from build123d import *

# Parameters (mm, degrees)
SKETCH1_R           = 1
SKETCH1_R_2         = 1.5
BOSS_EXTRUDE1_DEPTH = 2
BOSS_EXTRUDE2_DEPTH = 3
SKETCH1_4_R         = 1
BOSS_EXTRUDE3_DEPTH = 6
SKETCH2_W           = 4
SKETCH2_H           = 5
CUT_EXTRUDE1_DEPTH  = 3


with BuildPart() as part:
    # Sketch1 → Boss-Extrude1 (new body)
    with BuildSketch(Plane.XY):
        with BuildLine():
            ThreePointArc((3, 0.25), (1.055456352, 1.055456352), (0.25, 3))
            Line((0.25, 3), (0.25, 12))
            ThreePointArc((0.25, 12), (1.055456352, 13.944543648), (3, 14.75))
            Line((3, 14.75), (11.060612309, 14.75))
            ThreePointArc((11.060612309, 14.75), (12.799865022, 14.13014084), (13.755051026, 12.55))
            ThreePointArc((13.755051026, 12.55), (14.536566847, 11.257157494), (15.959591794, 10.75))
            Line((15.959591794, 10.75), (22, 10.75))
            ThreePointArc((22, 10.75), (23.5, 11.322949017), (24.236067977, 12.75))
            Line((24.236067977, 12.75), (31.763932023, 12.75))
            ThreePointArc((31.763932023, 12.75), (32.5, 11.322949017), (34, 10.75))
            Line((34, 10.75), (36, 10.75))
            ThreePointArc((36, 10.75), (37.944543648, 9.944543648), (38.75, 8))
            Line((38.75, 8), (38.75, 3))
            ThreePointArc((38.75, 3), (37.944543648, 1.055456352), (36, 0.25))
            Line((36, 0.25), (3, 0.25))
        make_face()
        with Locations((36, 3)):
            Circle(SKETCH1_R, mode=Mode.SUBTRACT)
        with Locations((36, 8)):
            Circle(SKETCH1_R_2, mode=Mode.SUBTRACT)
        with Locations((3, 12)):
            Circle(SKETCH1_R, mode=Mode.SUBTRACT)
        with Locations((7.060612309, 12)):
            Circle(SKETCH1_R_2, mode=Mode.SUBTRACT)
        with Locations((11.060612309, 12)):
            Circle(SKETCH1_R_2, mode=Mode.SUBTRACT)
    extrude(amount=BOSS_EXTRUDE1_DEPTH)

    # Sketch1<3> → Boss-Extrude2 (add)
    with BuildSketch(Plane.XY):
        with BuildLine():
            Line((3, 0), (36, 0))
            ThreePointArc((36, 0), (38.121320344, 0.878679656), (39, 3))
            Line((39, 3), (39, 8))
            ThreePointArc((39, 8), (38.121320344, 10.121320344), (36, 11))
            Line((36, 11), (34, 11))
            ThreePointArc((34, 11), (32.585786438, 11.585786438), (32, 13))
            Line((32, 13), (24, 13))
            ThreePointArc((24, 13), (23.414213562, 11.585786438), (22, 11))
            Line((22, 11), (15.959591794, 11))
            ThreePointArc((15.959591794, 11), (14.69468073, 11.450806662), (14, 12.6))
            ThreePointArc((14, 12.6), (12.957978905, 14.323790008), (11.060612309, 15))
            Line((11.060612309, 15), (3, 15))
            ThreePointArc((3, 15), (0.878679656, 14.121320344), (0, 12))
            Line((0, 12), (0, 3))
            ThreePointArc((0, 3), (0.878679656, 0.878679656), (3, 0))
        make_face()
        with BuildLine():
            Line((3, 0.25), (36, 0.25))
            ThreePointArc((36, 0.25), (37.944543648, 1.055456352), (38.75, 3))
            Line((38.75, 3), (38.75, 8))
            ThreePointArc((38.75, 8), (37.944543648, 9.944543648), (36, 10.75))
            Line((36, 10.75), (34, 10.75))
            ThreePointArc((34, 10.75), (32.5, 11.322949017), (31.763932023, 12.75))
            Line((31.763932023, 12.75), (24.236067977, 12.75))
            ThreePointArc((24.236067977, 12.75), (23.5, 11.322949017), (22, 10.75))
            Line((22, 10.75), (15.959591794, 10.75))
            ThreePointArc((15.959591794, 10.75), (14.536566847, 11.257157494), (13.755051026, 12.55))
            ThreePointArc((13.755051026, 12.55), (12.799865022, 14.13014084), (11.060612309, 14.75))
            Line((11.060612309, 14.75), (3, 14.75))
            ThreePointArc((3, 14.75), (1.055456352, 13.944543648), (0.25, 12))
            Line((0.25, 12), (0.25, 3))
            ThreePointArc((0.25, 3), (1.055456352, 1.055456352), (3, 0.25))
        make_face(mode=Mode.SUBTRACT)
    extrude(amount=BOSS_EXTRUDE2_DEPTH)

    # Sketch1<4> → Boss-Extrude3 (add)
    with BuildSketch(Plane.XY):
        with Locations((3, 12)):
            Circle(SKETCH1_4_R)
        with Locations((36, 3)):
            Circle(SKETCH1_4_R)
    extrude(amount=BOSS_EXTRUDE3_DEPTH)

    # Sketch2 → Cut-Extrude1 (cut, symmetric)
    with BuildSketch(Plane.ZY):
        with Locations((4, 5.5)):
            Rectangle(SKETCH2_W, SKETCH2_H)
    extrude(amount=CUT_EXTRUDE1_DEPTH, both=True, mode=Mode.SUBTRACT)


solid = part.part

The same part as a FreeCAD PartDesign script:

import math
import FreeCAD as App
import Part
import Sketcher

V = App.Vector
Q = App.Units.Quantity


def add_polygon(sketch, points):
    """Adds a closed chain of lines whose ends are joined by coincident constraints."""
    first, n = sketch.GeometryCount, len(points)
    for a, b in zip(points, points[1:] + points[:1]):
        sketch.addGeometry(Part.LineSegment(App.Vector(*a, 0), App.Vector(*b, 0)), False)
    for i in range(n):
        sketch.addConstraint(Sketcher.Constraint("Coincident", first + i, 2, first + (i + 1) % n, 1))

doc = App.newDocument("Part")
params = doc.addObject("Spreadsheet::Sheet", "Params")
for row, (alias, value) in enumerate([
    ("sketch1_diameter", "2 mm"),
    ("sketch1_diameter2", "3 mm"),
    ("sketch1_width", "33 mm"),
    ("sketch1_width2", "2 mm"),
    ("sketch1_height", "5 mm"),
    ("pad1_length", "2 mm"),
    ("sketch2_radius", "3 mm"),
    ("sketch2_radius2", "2 mm"),
    ("sketch2_width", "33 mm"),
    ("sketch2_width2", "2 mm"),
    ("sketch2_width3", "8 mm"),
    ("pad2_length", "3 mm"),
    ("sketch3_diameter", "2 mm"),
    ("pad3_length", "6 mm"),
    ("sketch4_width", "5 mm"),
    ("sketch4_height", "4 mm"),
    ("pocket1_length", "6 mm"),
], start=1):
    params.set(f"A{row}", alias)
    params.set(f"B{row}", "=" + value)
    params.setAlias(f"B{row}", alias)

body = doc.addObject("PartDesign::Body", "Body")

# Sketch on XY plane
sketch1 = doc.addObject("Sketcher::SketchObject", "Sketch")
body.addObject(sketch1)
sketch1.AttachmentSupport = (doc.XY_Plane, [""])
sketch1.MapMode = "FlatFace"
sketch1.addGeometry(Part.ArcOfCircle(Part.Circle(V(3, 3, 0), V(0, 0, 1), 2.75), math.radians(-180), math.radians(-90)), False)
sketch1.addGeometry(Part.LineSegment(V(3, 0.25, 0), V(36, 0.25, 0)), False)
sketch1.addGeometry(Part.ArcOfCircle(Part.Circle(V(36, 3, 0), V(0, 0, 1), 2.75), math.radians(-90), math.radians(0)), False)
sketch1.addGeometry(Part.LineSegment(V(38.75, 3, 0), V(38.75, 8, 0)), False)
sketch1.addGeometry(Part.ArcOfCircle(Part.Circle(V(36, 8, 0), V(0, 0, 1), 2.75), math.radians(0), math.radians(90)), False)
sketch1.addGeometry(Part.LineSegment(V(36, 10.75, 0), V(34, 10.75, 0)), False)
sketch1.addGeometry(Part.ArcOfCircle(Part.Circle(V(34, 13, 0), V(0, 0, 1), 2.25), math.radians(-173.62063), math.radians(-90)), False)
sketch1.addGeometry(Part.LineSegment(V(31.763932, 12.75, 0), V(24.236068, 12.75, 0)), False)
sketch1.addGeometry(Part.ArcOfCircle(Part.Circle(V(22, 13, 0), V(0, 0, 1), 2.25), math.radians(-90), math.radians(-6.37937)), False)
sketch1.addGeometry(Part.LineSegment(V(22, 10.75, 0), V(15.959592, 10.75, 0)), False)
sketch1.addGeometry(Part.ArcOfCircle(Part.Circle(V(15.959592, 13, 0), V(0, 0, 1), 2.25), math.radians(-168.463041), math.radians(-90)), False)
sketch1.addGeometry(Part.ArcOfCircle(Part.Circle(V(11.060612, 12, 0), V(0, 0, 1), 2.75), math.radians(11.536959), math.radians(90)), False)
sketch1.addGeometry(Part.LineSegment(V(11.060612, 14.75, 0), V(3, 14.75, 0)), False)
sketch1.addGeometry(Part.ArcOfCircle(Part.Circle(V(3, 12, 0), V(0, 0, 1), 2.75), math.radians(90), math.radians(180)), False)
sketch1.addGeometry(Part.LineSegment(V(0.25, 12, 0), V(0.25, 3, 0)), False)
sketch1.addGeometry(Part.Circle(V(36, 3, 0), V(0, 0, 1), 1), False)
sketch1.addGeometry(Part.Circle(V(36, 8, 0), V(0, 0, 1), 1.5), False)
sketch1.addGeometry(Part.Circle(V(11.060612, 12, 0), V(0, 0, 1), 1.5), False)
sketch1.addGeometry(Part.Circle(V(7.060612, 12, 0), V(0, 0, 1), 1.5), False)
sketch1.addGeometry(Part.Circle(V(3, 12, 0), V(0, 0, 1), 1), False)
sketch1.addConstraint(Sketcher.Constraint("Tangent", 0, 2, 1, 1))
sketch1.addConstraint(Sketcher.Constraint("Tangent", 1, 2, 2, 1))
sketch1.addConstraint(Sketcher.Constraint("Tangent", 2, 2, 3, 1))
sketch1.addConstraint(Sketcher.Constraint("Tangent", 3, 2, 4, 1))
sketch1.addConstraint(Sketcher.Constraint("Tangent", 4, 2, 5, 1))
sketch1.addConstraint(Sketcher.Constraint("Tangent", 5, 2, 6, 2))
sketch1.addConstraint(Sketcher.Constraint("Coincident", 6, 1, 7, 1))
sketch1.addConstraint(Sketcher.Constraint("Coincident", 7, 2, 8, 2))
sketch1.addConstraint(Sketcher.Constraint("Tangent", 8, 1, 9, 1))
sketch1.addConstraint(Sketcher.Constraint("Tangent", 9, 2, 10, 2))
sketch1.addConstraint(Sketcher.Constraint("Tangent", 10, 1, 11, 1))
sketch1.addConstraint(Sketcher.Constraint("Tangent", 11, 2, 12, 1))
sketch1.addConstraint(Sketcher.Constraint("Tangent", 12, 2, 13, 1))
sketch1.addConstraint(Sketcher.Constraint("Tangent", 13, 2, 14, 1))
sketch1.addConstraint(Sketcher.Constraint("Tangent", 14, 2, 0, 1))
sketch1.addConstraint(Sketcher.Constraint("Horizontal", 1))
sketch1.addConstraint(Sketcher.Constraint("Vertical", 3))
sketch1.addConstraint(Sketcher.Constraint("Horizontal", 5))
sketch1.addConstraint(Sketcher.Constraint("Horizontal", 7))
sketch1.addConstraint(Sketcher.Constraint("Horizontal", 9))
sketch1.addConstraint(Sketcher.Constraint("Horizontal", 12))
sketch1.addConstraint(Sketcher.Constraint("Vertical", 14))
sketch1.addConstraint(Sketcher.Constraint("Coincident", 15, 3, 2, 3))
sketch1.addConstraint(Sketcher.Constraint("Coincident", 16, 3, 4, 3))
sketch1.addConstraint(Sketcher.Constraint("Coincident", 17, 3, 11, 3))
sketch1.addConstraint(Sketcher.Constraint("Coincident", 19, 3, 13, 3))
sketch1.addConstraint(Sketcher.Constraint("Equal", 0, 2))
sketch1.addConstraint(Sketcher.Constraint("Equal", 2, 4))
sketch1.addConstraint(Sketcher.Constraint("Equal", 6, 8))
sketch1.addConstraint(Sketcher.Constraint("Equal", 8, 10))
sketch1.addConstraint(Sketcher.Constraint("Equal", 4, 11))
sketch1.addConstraint(Sketcher.Constraint("Equal", 11, 13))
sketch1.addConstraint(Sketcher.Constraint("Equal", 16, 17))
sketch1.addConstraint(Sketcher.Constraint("Equal", 17, 18))
sketch1.addConstraint(Sketcher.Constraint("Equal", 15, 19))
sketch1.addConstraint(Sketcher.Constraint("Horizontal", 6, 3, 8, 3))
sketch1.addConstraint(Sketcher.Constraint("Horizontal", 17, 3, 18, 3))
sketch1.addConstraint(Sketcher.Constraint("Diameter", 15, Q("2 mm")))
sketch1.addConstraint(Sketcher.Constraint("Diameter", 16, Q("3 mm")))
sketch1.addConstraint(Sketcher.Constraint("DistanceX", 1, 1, 1, 2, Q("33 mm")))
sketch1.addConstraint(Sketcher.Constraint("DistanceX", 5, 2, 5, 1, Q("2 mm")))
sketch1.addConstraint(Sketcher.Constraint("DistanceY", 3, 1, 3, 2, Q("5 mm")))
sketch1.addConstraint(Sketcher.Constraint("DistanceY", 14, 2, 14, 1, Q("9 mm")))
sketch1.addConstraint(Sketcher.Constraint("Radius", 0, Q("2.75 mm")))
sketch1.addConstraint(Sketcher.Constraint("Radius", 6, Q("2.25 mm")))
sketch1.addConstraint(Sketcher.Constraint("DistanceX", -1, 1, 0, 3, Q("3 mm")))
sketch1.addConstraint(Sketcher.Constraint("DistanceY", -1, 1, 0, 3, Q("3 mm")))
sketch1.addConstraint(Sketcher.Constraint("DistanceX", -1, 1, 8, 3, Q("22 mm")))
sketch1.addConstraint(Sketcher.Constraint("DistanceX", 18, 3, 11, 3, Q("4 mm")))
sketch1.addConstraint(Sketcher.Constraint("DistanceY", 5, 2, 6, 1, Q("2 mm")))
sketch1.addConstraint(Sketcher.Constraint("DistanceX", 9, 2, 9, 1, Q("6.040408 mm")))
sketch1.setExpression("Constraints[37]", "Params.sketch1_diameter")
sketch1.setExpression("Constraints[38]", "Params.sketch1_diameter2")
sketch1.setExpression("Constraints[39]", "Params.sketch1_width")
sketch1.setExpression("Constraints[40]", "Params.sketch1_width2")
sketch1.setExpression("Constraints[41]", "Params.sketch1_height")
pad1 = doc.addObject("PartDesign::Pad", "Pad")
body.addObject(pad1)
pad1.Profile = sketch1
pad1.setExpression("Length", "Params.pad1_length")

# Sketch on XY plane
sketch2 = doc.addObject("Sketcher::SketchObject", "Sketch001")
body.addObject(sketch2)
sketch2.AttachmentSupport = (doc.XY_Plane, [""])
sketch2.MapMode = "FlatFace"
sketch2.addGeometry(Part.LineSegment(V(3, 0, 0), V(36, 0, 0)), False)
sketch2.addGeometry(Part.ArcOfCircle(Part.Circle(V(36, 3, 0), V(0, 0, 1), 3), math.radians(-90), math.radians(0)), False)
sketch2.addGeometry(Part.LineSegment(V(39, 3, 0), V(39, 8, 0)), False)
sketch2.addGeometry(Part.ArcOfCircle(Part.Circle(V(36, 8, 0), V(0, 0, 1), 3), math.radians(0), math.radians(90)), False)
sketch2.addGeometry(Part.LineSegment(V(36, 11, 0), V(34, 11, 0)), False)
sketch2.addGeometry(Part.ArcOfCircle(Part.Circle(V(34, 13, 0), V(0, 0, 1), 2), math.radians(-180), math.radians(-90)), False)
sketch2.addGeometry(Part.LineSegment(V(32, 13, 0), V(24, 13, 0)), False)
sketch2.addGeometry(Part.ArcOfCircle(Part.Circle(V(22, 13, 0), V(0, 0, 1), 2), math.radians(-90), math.radians(0)), False)
sketch2.addGeometry(Part.LineSegment(V(22, 11, 0), V(15.959592, 11, 0)), False)
sketch2.addGeometry(Part.ArcOfCircle(Part.Circle(V(15.959592, 13, 0), V(0, 0, 1), 2), math.radians(-168.463041), math.radians(-90)), False)
sketch2.addGeometry(Part.ArcOfCircle(Part.Circle(V(11.060612, 12, 0), V(0, 0, 1), 3), math.radians(11.536959), math.radians(90)), False)
sketch2.addGeometry(Part.LineSegment(V(11.060612, 15, 0), V(3, 15, 0)), False)
sketch2.addGeometry(Part.ArcOfCircle(Part.Circle(V(3, 12, 0), V(0, 0, 1), 3), math.radians(90), math.radians(180)), False)
sketch2.addGeometry(Part.LineSegment(V(0, 12, 0), V(0, 3, 0)), False)
sketch2.addGeometry(Part.ArcOfCircle(Part.Circle(V(3, 3, 0), V(0, 0, 1), 3), math.radians(180), math.radians(270)), False)
sketch2.addGeometry(Part.LineSegment(V(36, 0.25, 0), V(3, 0.25, 0)), False)
sketch2.addGeometry(Part.ArcOfCircle(Part.Circle(V(3, 3, 0), V(0, 0, 1), 2.75), math.radians(-180), math.radians(-90)), False)
sketch2.addGeometry(Part.LineSegment(V(0.25, 3, 0), V(0.25, 12, 0)), False)
sketch2.addGeometry(Part.ArcOfCircle(Part.Circle(V(3, 12, 0), V(0, 0, 1), 2.75), math.radians(90), math.radians(180)), False)
sketch2.addGeometry(Part.LineSegment(V(3, 14.75, 0), V(11.060612, 14.75, 0)), False)
sketch2.addGeometry(Part.ArcOfCircle(Part.Circle(V(11.060612, 12, 0), V(0, 0, 1), 2.75), math.radians(11.536959), math.radians(90)), False)
sketch2.addGeometry(Part.ArcOfCircle(Part.Circle(V(15.959592, 13, 0), V(0, 0, 1), 2.25), math.radians(-168.463041), math.radians(-90)), False)
sketch2.addGeometry(Part.LineSegment(V(15.959592, 10.75, 0), V(22, 10.75, 0)), False)
sketch2.addGeometry(Part.ArcOfCircle(Part.Circle(V(22, 13, 0), V(0, 0, 1), 2.25), math.radians(-90), math.radians(-6.37937)), False)
sketch2.addGeometry(Part.LineSegment(V(24.236068, 12.75, 0), V(31.763932, 12.75, 0)), False)
sketch2.addGeometry(Part.ArcOfCircle(Part.Circle(V(34, 13, 0), V(0, 0, 1), 2.25), math.radians(-173.62063), math.radians(-90)), False)
sketch2.addGeometry(Part.LineSegment(V(34, 10.75, 0), V(36, 10.75, 0)), False)
sketch2.addGeometry(Part.ArcOfCircle(Part.Circle(V(36, 8, 0), V(0, 0, 1), 2.75), math.radians(0), math.radians(90)), False)
sketch2.addGeometry(Part.LineSegment(V(38.75, 8, 0), V(38.75, 3, 0)), False)
sketch2.addGeometry(Part.ArcOfCircle(Part.Circle(V(36, 3, 0), V(0, 0, 1), 2.75), math.radians(-90), math.radians(0)), False)
sketch2.addConstraint(Sketcher.Constraint("Tangent", 0, 2, 1, 1))
sketch2.addConstraint(Sketcher.Constraint("Tangent", 1, 2, 2, 1))
sketch2.addConstraint(Sketcher.Constraint("Tangent", 2, 2, 3, 1))
sketch2.addConstraint(Sketcher.Constraint("Tangent", 3, 2, 4, 1))
sketch2.addConstraint(Sketcher.Constraint("Tangent", 4, 2, 5, 2))
sketch2.addConstraint(Sketcher.Constraint("Coincident", 5, 1, 6, 1))
sketch2.addConstraint(Sketcher.Constraint("Coincident", 6, 2, 7, 2))
sketch2.addConstraint(Sketcher.Constraint("Tangent", 7, 1, 8, 1))
sketch2.addConstraint(Sketcher.Constraint("Tangent", 8, 2, 9, 2))
sketch2.addConstraint(Sketcher.Constraint("Tangent", 9, 1, 10, 1))
sketch2.addConstraint(Sketcher.Constraint("Tangent", 10, 2, 11, 1))
sketch2.addConstraint(Sketcher.Constraint("Tangent", 11, 2, 12, 1))
sketch2.addConstraint(Sketcher.Constraint("Tangent", 12, 2, 13, 1))
sketch2.addConstraint(Sketcher.Constraint("Tangent", 13, 2, 14, 1))
sketch2.addConstraint(Sketcher.Constraint("Tangent", 14, 2, 0, 1))
sketch2.addConstraint(Sketcher.Constraint("Tangent", 15, 2, 16, 2))
sketch2.addConstraint(Sketcher.Constraint("Tangent", 16, 1, 17, 1))
sketch2.addConstraint(Sketcher.Constraint("Tangent", 17, 2, 18, 2))
sketch2.addConstraint(Sketcher.Constraint("Tangent", 18, 1, 19, 1))
sketch2.addConstraint(Sketcher.Constraint("Tangent", 19, 2, 20, 2))
sketch2.addConstraint(Sketcher.Constraint("Tangent", 20, 1, 21, 1))
sketch2.addConstraint(Sketcher.Constraint("Tangent", 21, 2, 22, 1))
sketch2.addConstraint(Sketcher.Constraint("Tangent", 22, 2, 23, 1))
sketch2.addConstraint(Sketcher.Constraint("Coincident", 23, 2, 24, 1))
sketch2.addConstraint(Sketcher.Constraint("Coincident", 24, 2, 25, 1))
sketch2.addConstraint(Sketcher.Constraint("Tangent", 25, 2, 26, 1))
sketch2.addConstraint(Sketcher.Constraint("Tangent", 26, 2, 27, 2))
sketch2.addConstraint(Sketcher.Constraint("Tangent", 27, 1, 28, 1))
sketch2.addConstraint(Sketcher.Constraint("Tangent", 28, 2, 29, 2))
sketch2.addConstraint(Sketcher.Constraint("Tangent", 29, 1, 15, 1))
sketch2.addConstraint(Sketcher.Constraint("Horizontal", 0))
sketch2.addConstraint(Sketcher.Constraint("Vertical", 2))
sketch2.addConstraint(Sketcher.Constraint("Horizontal", 4))
sketch2.addConstraint(Sketcher.Constraint("Horizontal", 6))
sketch2.addConstraint(Sketcher.Constraint("Horizontal", 8))
sketch2.addConstraint(Sketcher.Constraint("Horizontal", 11))
sketch2.addConstraint(Sketcher.Constraint("Vertical", 13))
sketch2.addConstraint(Sketcher.Constraint("Horizontal", 15))
sketch2.addConstraint(Sketcher.Constraint("Vertical", 17))
sketch2.addConstraint(Sketcher.Constraint("Horizontal", 19))
sketch2.addConstraint(Sketcher.Constraint("Horizontal", 22))
sketch2.addConstraint(Sketcher.Constraint("Horizontal", 24))
sketch2.addConstraint(Sketcher.Constraint("Horizontal", 26))
sketch2.addConstraint(Sketcher.Constraint("Vertical", 28))
sketch2.addConstraint(Sketcher.Constraint("Coincident", 16, 3, 14, 3))
sketch2.addConstraint(Sketcher.Constraint("Coincident", 18, 3, 12, 3))
sketch2.addConstraint(Sketcher.Constraint("Coincident", 20, 3, 10, 3))
sketch2.addConstraint(Sketcher.Constraint("Coincident", 21, 3, 9, 3))
sketch2.addConstraint(Sketcher.Constraint("Coincident", 23, 3, 7, 3))
sketch2.addConstraint(Sketcher.Constraint("Coincident", 25, 3, 5, 3))
sketch2.addConstraint(Sketcher.Constraint("Coincident", 27, 3, 3, 3))
sketch2.addConstraint(Sketcher.Constraint("Coincident", 29, 3, 1, 3))
sketch2.addConstraint(Sketcher.Constraint("Equal", 1, 3))
sketch2.addConstraint(Sketcher.Constraint("Equal", 5, 7))
sketch2.addConstraint(Sketcher.Constraint("Equal", 7, 9))
sketch2.addConstraint(Sketcher.Constraint("Equal", 3, 10))
sketch2.addConstraint(Sketcher.Constraint("Equal", 10, 12))
sketch2.addConstraint(Sketcher.Constraint("Equal", 12, 14))
sketch2.addConstraint(Sketcher.Constraint("PointOnObject", 0, 2, -1))
sketch2.addConstraint(Sketcher.Constraint("PointOnObject", 12, 2, -2))
sketch2.addConstraint(Sketcher.Constraint("Horizontal", 5, 3, 7, 3))
sketch2.addConstraint(Sketcher.Constraint("Horizontal", 25, 3, 5, 1))
sketch2.addConstraint(Sketcher.Constraint("Radius", 1, Q("3 mm")))
sketch2.addConstraint(Sketcher.Constraint("Radius", 5, Q("2 mm")))
sketch2.addConstraint(Sketcher.Constraint("DistanceX", 0, 1, 0, 2, Q("33 mm")))
sketch2.addConstraint(Sketcher.Constraint("DistanceX", 4, 2, 4, 1, Q("2 mm")))
sketch2.addConstraint(Sketcher.Constraint("DistanceX", 6, 2, 6, 1, Q("8 mm")))
sketch2.addConstraint(Sketcher.Constraint("DistanceY", 2, 1, 2, 2, Q("5 mm")))
sketch2.addConstraint(Sketcher.Constraint("DistanceY", 13, 2, 13, 1, Q("9 mm")))
sketch2.addConstraint(Sketcher.Constraint("Radius", 16, Q("2.75 mm")))
sketch2.addConstraint(Sketcher.Constraint("DistanceX", -1, 1, 9, 1, Q("14 mm")))
sketch2.addConstraint(Sketcher.Constraint("DistanceY", 22, 2, 23, 2, Q("2 mm")))
sketch2.setExpression("Constraints[62]", "Params.sketch2_radius")
sketch2.setExpression("Constraints[63]", "Params.sketch2_radius2")
sketch2.setExpression("Constraints[64]", "Params.sketch2_width")
sketch2.setExpression("Constraints[65]", "Params.sketch2_width2")
sketch2.setExpression("Constraints[66]", "Params.sketch2_width3")
pad2 = doc.addObject("PartDesign::Pad", "Pad001")
body.addObject(pad2)
pad2.Profile = sketch2
pad2.setExpression("Length", "Params.pad2_length")

# Sketch on XY plane
sketch3 = doc.addObject("Sketcher::SketchObject", "Sketch002")
body.addObject(sketch3)
sketch3.AttachmentSupport = (doc.XY_Plane, [""])
sketch3.MapMode = "FlatFace"
sketch3.addGeometry(Part.Circle(V(3, 12, 0), V(0, 0, 1), 1), False)
sketch3.addGeometry(Part.Circle(V(36, 3, 0), V(0, 0, 1), 1), False)
sketch3.addConstraint(Sketcher.Constraint("Equal", 0, 1))
sketch3.addConstraint(Sketcher.Constraint("Diameter", 0, Q("2 mm")))
sketch3.addConstraint(Sketcher.Constraint("DistanceX", -1, 1, 0, 3, Q("3 mm")))
sketch3.addConstraint(Sketcher.Constraint("DistanceY", -1, 1, 0, 3, Q("12 mm")))
sketch3.addConstraint(Sketcher.Constraint("DistanceX", -1, 1, 1, 3, Q("36 mm")))
sketch3.addConstraint(Sketcher.Constraint("DistanceY", -1, 1, 1, 3, Q("3 mm")))
sketch3.setExpression("Constraints[1]", "Params.sketch3_diameter")
pad3 = doc.addObject("PartDesign::Pad", "Pad002")
body.addObject(pad3)
pad3.Profile = sketch3
pad3.setExpression("Length", "Params.pad3_length")

# Sketch on YZ plane
sketch4 = doc.addObject("Sketcher::SketchObject", "Sketch003")
body.addObject(sketch4)
sketch4.AttachmentSupport = (doc.YZ_Plane, [""])
sketch4.MapMode = "FlatFace"
add_polygon(sketch4, [(8, 2), (3, 2), (3, 6), (8, 6)])  # lines 0-3
sketch4.addConstraint(Sketcher.Constraint("Horizontal", 0))
sketch4.addConstraint(Sketcher.Constraint("Vertical", 1))
sketch4.addConstraint(Sketcher.Constraint("Horizontal", 2))
sketch4.addConstraint(Sketcher.Constraint("Vertical", 3))
sketch4.addConstraint(Sketcher.Constraint("DistanceX", 0, 2, 0, 1, Q("5 mm")))
sketch4.addConstraint(Sketcher.Constraint("DistanceY", 1, 1, 1, 2, Q("4 mm")))
sketch4.addConstraint(Sketcher.Constraint("DistanceX", -1, 1, 0, 2, Q("3 mm")))
sketch4.addConstraint(Sketcher.Constraint("DistanceY", -1, 1, 0, 2, Q("2 mm")))
sketch4.setExpression("Constraints[8]", "Params.sketch4_width")
sketch4.setExpression("Constraints[9]", "Params.sketch4_height")
pocket1 = doc.addObject("PartDesign::Pocket", "Pocket")
body.addObject(pocket1)
pocket1.Profile = sketch4
pocket1.setExpression("Length", "Params.pocket1_length")
pocket1.Midplane = True

doc.recompute()
